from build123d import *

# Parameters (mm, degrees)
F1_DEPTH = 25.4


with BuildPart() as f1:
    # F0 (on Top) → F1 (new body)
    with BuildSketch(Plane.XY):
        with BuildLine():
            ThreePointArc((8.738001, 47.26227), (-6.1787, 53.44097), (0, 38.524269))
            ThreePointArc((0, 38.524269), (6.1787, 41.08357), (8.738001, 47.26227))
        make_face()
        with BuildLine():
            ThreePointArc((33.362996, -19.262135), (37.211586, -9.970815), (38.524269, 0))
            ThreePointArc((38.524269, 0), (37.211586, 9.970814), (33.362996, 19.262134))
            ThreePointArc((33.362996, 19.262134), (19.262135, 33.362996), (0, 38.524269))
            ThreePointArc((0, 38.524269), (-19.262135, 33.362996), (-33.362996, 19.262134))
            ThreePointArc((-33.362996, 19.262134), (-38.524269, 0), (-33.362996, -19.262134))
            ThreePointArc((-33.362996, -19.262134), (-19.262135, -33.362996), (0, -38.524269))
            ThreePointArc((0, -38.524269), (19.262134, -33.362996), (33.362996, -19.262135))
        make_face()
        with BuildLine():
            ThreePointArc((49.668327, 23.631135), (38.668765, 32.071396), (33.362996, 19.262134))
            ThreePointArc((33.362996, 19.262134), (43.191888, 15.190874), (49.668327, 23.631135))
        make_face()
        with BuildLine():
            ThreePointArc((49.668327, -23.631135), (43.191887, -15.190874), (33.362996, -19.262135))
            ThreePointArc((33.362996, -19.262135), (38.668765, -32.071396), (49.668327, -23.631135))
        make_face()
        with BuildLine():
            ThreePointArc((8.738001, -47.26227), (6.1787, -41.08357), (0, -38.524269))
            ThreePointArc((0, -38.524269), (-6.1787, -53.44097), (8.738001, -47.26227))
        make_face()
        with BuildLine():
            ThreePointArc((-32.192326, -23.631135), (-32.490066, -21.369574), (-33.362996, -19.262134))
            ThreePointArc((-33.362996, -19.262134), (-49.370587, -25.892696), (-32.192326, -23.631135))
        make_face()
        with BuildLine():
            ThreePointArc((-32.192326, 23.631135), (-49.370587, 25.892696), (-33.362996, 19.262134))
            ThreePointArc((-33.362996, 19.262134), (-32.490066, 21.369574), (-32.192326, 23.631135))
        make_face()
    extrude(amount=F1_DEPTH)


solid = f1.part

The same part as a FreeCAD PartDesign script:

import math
import FreeCAD as App
import Part
import Sketcher

V = App.Vector
Q = App.Units.Quantity

doc = App.newDocument("Part")
body = doc.addObject("PartDesign::Body", "Body")
body.AllowCompound = True

sketch1 = body.newObject("Sketcher::SketchObject", "Sketch")
sketch1.AttachmentSupport = (doc.getObject("XY_Plane"), [""])
sketch1.MapMode = "FlatFace"
sketch1.addGeometry([
    Part.ArcOfCircle(Part.Circle(V(0, 47.3, 0), V(0, 0, 1), 8.7), math.radians(0), math.radians(270)),
    Part.ArcOfCircle(Part.Circle(V(0, 47.3, 0), V(0, 0, 1), 8.7), math.radians(-90), math.radians(0)),
    Part.ArcOfCircle(Part.Circle(V(0, 0, 0), V(0, 0, 1), 38.5), math.radians(-30), math.radians(0)),
    Part.ArcOfCircle(Part.Circle(V(0, 0, 0), V(0, 0, 1), 38.5), math.radians(0), math.radians(30)),
    Part.ArcOfCircle(Part.Circle(V(0, 0, 0), V(0, 0, 1), 38.5), math.radians(30), math.radians(90)),
    Part.ArcOfCircle(Part.Circle(V(0, 0, 0), V(0, 0, 1), 38.5), math.radians(90), math.radians(150)),
    Part.ArcOfCircle(Part.Circle(V(0, 0, 0), V(0, 0, 1), 38.5), math.radians(150), math.radians(210)),
    Part.ArcOfCircle(Part.Circle(V(0, 0, 0), V(0, 0, 1), 38.5), math.radians(-150), math.radians(-90)),
    Part.ArcOfCircle(Part.Circle(V(0, 0, 0), V(0, 0, 1), 38.5), math.radians(-90), math.radians(-30)),
    Part.ArcOfCircle(Part.Circle(V(40.9, 23.6, 0), V(0, 0, 1), 8.7), math.radians(0), math.radians(210)),
    Part.ArcOfCircle(Part.Circle(V(40.9, 23.6, 0), V(0, 0, 1), 8.7), math.radians(-150), math.radians(0)),
    Part.ArcOfCircle(Part.Circle(V(40.9, -23.6, 0), V(0, 0, 1), 8.7), math.radians(0), math.radians(150)),
    Part.ArcOfCircle(Part.Circle(V(40.9, -23.6, 0), V(0, 0, 1), 8.7), math.radians(150), math.radians(360)),
    Part.ArcOfCircle(Part.Circle(V(0, -47.3, 0), V(0, 0, 1), 8.7), math.radians(0), math.radians(90)),
    Part.ArcOfCircle(Part.Circle(V(0, -47.3, 0), V(0, 0, 1), 8.7), math.radians(90), math.radians(360)),
    Part.ArcOfCircle(Part.Circle(V(-40.9, -23.6, 0), V(0, 0, 1), 8.7), math.radians(0), math.radians(30)),
    Part.ArcOfCircle(Part.Circle(V(-40.9, -23.6, 0), V(0, 0, 1), 8.7), math.radians(30), math.radians(360)),
    Part.ArcOfCircle(Part.Circle(V(-40.9, 23.6, 0), V(0, 0, 1), 8.7), math.radians(0), math.radians(330)),
    Part.ArcOfCircle(Part.Circle(V(-40.9, 23.6, 0), V(0, 0, 1), 8.7), math.radians(-30), math.radians(0)),
], False)
sketch1.addConstraint([
    Sketcher.Constraint("Tangent", 0, 1, 1, 2),
    Sketcher.Constraint("Coincident", 1, 1, 0, 2),
    Sketcher.Constraint("Tangent", 2, 2, 3, 1),
    Sketcher.Constraint("Tangent", 3, 2, 4, 1),
    Sketcher.Constraint("Tangent", 4, 2, 5, 1),
    Sketcher.Constraint("Tangent", 5, 2, 6, 1),
    Sketcher.Constraint("Tangent", 6, 2, 7, 1),
    Sketcher.Constraint("Tangent", 7, 2, 8, 1),
    Sketcher.Constraint("Tangent", 8, 2, 2, 1),
    Sketcher.Constraint("Tangent", 9, 1, 10, 2),
    Sketcher.Constraint("Coincident", 10, 1, 9, 2),
    Sketcher.Constraint("Tangent", 11, 1, 12, 2),
    Sketcher.Constraint("Coincident", 12, 1, 11, 2),
    Sketcher.Constraint("Tangent", 13, 1, 14, 2),
    Sketcher.Constraint("Coincident", 14, 1, 13, 2),
    Sketcher.Constraint("Tangent", 15, 1, 16, 2),
    Sketcher.Constraint("Coincident", 16, 1, 15, 2),
    Sketcher.Constraint("Tangent", 17, 1, 18, 2),
    Sketcher.Constraint("Coincident", 18, 1, 17, 2),
    Sketcher.Constraint("Coincident", 4, 3, -1, 1),
    Sketcher.Constraint("Coincident", 6, 3, -1, 1),
    Sketcher.Constraint("Coincident", 8, 3, -1, 1),
    Sketcher.Constraint("Coincident", 4, 2, 1, 1),
    Sketcher.Constraint("Coincident", 10, 1, 3, 2),
    Sketcher.Constraint("Coincident", 12, 1, 8, 2),
    Sketcher.Constraint("Coincident", 14, 1, 7, 2),
    Sketcher.Constraint("Coincident", 16, 1, 6, 2),
    Sketcher.Constraint("Coincident", 18, 1, 5, 2),
    Sketcher.Constraint("Equal", 1, 9),
    Sketcher.Constraint("Equal", 10, 11),
    Sketcher.Constraint("Equal", 12, 13),
    Sketcher.Constraint("Equal", 14, 15),
    Sketcher.Constraint("Equal", 16, 17),
    Sketcher.Constraint("Symmetric", 9, 1, 11, 1, -1),
    Sketcher.Constraint("Symmetric", 0, 1, 13, 1, -1),
    Sketcher.Constraint("Symmetric", 15, 1, 17, 1, -1),
    Sketcher.Constraint("PointOnObject", 0, 3, -2),
    Sketcher.Constraint("PointOnObject", 1, 1, -2),
    Sketcher.Constraint("PointOnObject", 2, 2, -1),
    Sketcher.Constraint("PointOnObject", 7, 2, -2),
    Sketcher.Constraint("Horizontal", 12, 3, 15, 3),
    Sketcher.Constraint("Horizontal", 1, 3, 0, 1),
    Sketcher.Constraint("Horizontal", 3, 2, 5, 2),
    Sketcher.Constraint("Horizontal", 6, 2, 8, 2),
    Sketcher.Constraint("Horizontal", 18, 3, 9, 1),
    Sketcher.Constraint("Horizontal", 11, 1, 15, 1),
    Sketcher.Constraint("Vertical", 5, 2, 6, 2),
    Sketcher.Constraint("Radius", 0, Q("8.738001 mm")),
    Sketcher.Constraint("Radius", 6, Q("38.52427 mm")),
    Sketcher.Constraint("DistanceY", 3, 2, 10, 3, Q("4.369 mm")),
    Sketcher.Constraint("DistanceX", 15, 3, -1, 1, Q("40.930329 mm")),
])
pad1 = body.newObject("PartDesign::Pad", "Pad")
pad1.Profile = sketch1
pad1.Length = Q("1 in")

doc.recompute()
